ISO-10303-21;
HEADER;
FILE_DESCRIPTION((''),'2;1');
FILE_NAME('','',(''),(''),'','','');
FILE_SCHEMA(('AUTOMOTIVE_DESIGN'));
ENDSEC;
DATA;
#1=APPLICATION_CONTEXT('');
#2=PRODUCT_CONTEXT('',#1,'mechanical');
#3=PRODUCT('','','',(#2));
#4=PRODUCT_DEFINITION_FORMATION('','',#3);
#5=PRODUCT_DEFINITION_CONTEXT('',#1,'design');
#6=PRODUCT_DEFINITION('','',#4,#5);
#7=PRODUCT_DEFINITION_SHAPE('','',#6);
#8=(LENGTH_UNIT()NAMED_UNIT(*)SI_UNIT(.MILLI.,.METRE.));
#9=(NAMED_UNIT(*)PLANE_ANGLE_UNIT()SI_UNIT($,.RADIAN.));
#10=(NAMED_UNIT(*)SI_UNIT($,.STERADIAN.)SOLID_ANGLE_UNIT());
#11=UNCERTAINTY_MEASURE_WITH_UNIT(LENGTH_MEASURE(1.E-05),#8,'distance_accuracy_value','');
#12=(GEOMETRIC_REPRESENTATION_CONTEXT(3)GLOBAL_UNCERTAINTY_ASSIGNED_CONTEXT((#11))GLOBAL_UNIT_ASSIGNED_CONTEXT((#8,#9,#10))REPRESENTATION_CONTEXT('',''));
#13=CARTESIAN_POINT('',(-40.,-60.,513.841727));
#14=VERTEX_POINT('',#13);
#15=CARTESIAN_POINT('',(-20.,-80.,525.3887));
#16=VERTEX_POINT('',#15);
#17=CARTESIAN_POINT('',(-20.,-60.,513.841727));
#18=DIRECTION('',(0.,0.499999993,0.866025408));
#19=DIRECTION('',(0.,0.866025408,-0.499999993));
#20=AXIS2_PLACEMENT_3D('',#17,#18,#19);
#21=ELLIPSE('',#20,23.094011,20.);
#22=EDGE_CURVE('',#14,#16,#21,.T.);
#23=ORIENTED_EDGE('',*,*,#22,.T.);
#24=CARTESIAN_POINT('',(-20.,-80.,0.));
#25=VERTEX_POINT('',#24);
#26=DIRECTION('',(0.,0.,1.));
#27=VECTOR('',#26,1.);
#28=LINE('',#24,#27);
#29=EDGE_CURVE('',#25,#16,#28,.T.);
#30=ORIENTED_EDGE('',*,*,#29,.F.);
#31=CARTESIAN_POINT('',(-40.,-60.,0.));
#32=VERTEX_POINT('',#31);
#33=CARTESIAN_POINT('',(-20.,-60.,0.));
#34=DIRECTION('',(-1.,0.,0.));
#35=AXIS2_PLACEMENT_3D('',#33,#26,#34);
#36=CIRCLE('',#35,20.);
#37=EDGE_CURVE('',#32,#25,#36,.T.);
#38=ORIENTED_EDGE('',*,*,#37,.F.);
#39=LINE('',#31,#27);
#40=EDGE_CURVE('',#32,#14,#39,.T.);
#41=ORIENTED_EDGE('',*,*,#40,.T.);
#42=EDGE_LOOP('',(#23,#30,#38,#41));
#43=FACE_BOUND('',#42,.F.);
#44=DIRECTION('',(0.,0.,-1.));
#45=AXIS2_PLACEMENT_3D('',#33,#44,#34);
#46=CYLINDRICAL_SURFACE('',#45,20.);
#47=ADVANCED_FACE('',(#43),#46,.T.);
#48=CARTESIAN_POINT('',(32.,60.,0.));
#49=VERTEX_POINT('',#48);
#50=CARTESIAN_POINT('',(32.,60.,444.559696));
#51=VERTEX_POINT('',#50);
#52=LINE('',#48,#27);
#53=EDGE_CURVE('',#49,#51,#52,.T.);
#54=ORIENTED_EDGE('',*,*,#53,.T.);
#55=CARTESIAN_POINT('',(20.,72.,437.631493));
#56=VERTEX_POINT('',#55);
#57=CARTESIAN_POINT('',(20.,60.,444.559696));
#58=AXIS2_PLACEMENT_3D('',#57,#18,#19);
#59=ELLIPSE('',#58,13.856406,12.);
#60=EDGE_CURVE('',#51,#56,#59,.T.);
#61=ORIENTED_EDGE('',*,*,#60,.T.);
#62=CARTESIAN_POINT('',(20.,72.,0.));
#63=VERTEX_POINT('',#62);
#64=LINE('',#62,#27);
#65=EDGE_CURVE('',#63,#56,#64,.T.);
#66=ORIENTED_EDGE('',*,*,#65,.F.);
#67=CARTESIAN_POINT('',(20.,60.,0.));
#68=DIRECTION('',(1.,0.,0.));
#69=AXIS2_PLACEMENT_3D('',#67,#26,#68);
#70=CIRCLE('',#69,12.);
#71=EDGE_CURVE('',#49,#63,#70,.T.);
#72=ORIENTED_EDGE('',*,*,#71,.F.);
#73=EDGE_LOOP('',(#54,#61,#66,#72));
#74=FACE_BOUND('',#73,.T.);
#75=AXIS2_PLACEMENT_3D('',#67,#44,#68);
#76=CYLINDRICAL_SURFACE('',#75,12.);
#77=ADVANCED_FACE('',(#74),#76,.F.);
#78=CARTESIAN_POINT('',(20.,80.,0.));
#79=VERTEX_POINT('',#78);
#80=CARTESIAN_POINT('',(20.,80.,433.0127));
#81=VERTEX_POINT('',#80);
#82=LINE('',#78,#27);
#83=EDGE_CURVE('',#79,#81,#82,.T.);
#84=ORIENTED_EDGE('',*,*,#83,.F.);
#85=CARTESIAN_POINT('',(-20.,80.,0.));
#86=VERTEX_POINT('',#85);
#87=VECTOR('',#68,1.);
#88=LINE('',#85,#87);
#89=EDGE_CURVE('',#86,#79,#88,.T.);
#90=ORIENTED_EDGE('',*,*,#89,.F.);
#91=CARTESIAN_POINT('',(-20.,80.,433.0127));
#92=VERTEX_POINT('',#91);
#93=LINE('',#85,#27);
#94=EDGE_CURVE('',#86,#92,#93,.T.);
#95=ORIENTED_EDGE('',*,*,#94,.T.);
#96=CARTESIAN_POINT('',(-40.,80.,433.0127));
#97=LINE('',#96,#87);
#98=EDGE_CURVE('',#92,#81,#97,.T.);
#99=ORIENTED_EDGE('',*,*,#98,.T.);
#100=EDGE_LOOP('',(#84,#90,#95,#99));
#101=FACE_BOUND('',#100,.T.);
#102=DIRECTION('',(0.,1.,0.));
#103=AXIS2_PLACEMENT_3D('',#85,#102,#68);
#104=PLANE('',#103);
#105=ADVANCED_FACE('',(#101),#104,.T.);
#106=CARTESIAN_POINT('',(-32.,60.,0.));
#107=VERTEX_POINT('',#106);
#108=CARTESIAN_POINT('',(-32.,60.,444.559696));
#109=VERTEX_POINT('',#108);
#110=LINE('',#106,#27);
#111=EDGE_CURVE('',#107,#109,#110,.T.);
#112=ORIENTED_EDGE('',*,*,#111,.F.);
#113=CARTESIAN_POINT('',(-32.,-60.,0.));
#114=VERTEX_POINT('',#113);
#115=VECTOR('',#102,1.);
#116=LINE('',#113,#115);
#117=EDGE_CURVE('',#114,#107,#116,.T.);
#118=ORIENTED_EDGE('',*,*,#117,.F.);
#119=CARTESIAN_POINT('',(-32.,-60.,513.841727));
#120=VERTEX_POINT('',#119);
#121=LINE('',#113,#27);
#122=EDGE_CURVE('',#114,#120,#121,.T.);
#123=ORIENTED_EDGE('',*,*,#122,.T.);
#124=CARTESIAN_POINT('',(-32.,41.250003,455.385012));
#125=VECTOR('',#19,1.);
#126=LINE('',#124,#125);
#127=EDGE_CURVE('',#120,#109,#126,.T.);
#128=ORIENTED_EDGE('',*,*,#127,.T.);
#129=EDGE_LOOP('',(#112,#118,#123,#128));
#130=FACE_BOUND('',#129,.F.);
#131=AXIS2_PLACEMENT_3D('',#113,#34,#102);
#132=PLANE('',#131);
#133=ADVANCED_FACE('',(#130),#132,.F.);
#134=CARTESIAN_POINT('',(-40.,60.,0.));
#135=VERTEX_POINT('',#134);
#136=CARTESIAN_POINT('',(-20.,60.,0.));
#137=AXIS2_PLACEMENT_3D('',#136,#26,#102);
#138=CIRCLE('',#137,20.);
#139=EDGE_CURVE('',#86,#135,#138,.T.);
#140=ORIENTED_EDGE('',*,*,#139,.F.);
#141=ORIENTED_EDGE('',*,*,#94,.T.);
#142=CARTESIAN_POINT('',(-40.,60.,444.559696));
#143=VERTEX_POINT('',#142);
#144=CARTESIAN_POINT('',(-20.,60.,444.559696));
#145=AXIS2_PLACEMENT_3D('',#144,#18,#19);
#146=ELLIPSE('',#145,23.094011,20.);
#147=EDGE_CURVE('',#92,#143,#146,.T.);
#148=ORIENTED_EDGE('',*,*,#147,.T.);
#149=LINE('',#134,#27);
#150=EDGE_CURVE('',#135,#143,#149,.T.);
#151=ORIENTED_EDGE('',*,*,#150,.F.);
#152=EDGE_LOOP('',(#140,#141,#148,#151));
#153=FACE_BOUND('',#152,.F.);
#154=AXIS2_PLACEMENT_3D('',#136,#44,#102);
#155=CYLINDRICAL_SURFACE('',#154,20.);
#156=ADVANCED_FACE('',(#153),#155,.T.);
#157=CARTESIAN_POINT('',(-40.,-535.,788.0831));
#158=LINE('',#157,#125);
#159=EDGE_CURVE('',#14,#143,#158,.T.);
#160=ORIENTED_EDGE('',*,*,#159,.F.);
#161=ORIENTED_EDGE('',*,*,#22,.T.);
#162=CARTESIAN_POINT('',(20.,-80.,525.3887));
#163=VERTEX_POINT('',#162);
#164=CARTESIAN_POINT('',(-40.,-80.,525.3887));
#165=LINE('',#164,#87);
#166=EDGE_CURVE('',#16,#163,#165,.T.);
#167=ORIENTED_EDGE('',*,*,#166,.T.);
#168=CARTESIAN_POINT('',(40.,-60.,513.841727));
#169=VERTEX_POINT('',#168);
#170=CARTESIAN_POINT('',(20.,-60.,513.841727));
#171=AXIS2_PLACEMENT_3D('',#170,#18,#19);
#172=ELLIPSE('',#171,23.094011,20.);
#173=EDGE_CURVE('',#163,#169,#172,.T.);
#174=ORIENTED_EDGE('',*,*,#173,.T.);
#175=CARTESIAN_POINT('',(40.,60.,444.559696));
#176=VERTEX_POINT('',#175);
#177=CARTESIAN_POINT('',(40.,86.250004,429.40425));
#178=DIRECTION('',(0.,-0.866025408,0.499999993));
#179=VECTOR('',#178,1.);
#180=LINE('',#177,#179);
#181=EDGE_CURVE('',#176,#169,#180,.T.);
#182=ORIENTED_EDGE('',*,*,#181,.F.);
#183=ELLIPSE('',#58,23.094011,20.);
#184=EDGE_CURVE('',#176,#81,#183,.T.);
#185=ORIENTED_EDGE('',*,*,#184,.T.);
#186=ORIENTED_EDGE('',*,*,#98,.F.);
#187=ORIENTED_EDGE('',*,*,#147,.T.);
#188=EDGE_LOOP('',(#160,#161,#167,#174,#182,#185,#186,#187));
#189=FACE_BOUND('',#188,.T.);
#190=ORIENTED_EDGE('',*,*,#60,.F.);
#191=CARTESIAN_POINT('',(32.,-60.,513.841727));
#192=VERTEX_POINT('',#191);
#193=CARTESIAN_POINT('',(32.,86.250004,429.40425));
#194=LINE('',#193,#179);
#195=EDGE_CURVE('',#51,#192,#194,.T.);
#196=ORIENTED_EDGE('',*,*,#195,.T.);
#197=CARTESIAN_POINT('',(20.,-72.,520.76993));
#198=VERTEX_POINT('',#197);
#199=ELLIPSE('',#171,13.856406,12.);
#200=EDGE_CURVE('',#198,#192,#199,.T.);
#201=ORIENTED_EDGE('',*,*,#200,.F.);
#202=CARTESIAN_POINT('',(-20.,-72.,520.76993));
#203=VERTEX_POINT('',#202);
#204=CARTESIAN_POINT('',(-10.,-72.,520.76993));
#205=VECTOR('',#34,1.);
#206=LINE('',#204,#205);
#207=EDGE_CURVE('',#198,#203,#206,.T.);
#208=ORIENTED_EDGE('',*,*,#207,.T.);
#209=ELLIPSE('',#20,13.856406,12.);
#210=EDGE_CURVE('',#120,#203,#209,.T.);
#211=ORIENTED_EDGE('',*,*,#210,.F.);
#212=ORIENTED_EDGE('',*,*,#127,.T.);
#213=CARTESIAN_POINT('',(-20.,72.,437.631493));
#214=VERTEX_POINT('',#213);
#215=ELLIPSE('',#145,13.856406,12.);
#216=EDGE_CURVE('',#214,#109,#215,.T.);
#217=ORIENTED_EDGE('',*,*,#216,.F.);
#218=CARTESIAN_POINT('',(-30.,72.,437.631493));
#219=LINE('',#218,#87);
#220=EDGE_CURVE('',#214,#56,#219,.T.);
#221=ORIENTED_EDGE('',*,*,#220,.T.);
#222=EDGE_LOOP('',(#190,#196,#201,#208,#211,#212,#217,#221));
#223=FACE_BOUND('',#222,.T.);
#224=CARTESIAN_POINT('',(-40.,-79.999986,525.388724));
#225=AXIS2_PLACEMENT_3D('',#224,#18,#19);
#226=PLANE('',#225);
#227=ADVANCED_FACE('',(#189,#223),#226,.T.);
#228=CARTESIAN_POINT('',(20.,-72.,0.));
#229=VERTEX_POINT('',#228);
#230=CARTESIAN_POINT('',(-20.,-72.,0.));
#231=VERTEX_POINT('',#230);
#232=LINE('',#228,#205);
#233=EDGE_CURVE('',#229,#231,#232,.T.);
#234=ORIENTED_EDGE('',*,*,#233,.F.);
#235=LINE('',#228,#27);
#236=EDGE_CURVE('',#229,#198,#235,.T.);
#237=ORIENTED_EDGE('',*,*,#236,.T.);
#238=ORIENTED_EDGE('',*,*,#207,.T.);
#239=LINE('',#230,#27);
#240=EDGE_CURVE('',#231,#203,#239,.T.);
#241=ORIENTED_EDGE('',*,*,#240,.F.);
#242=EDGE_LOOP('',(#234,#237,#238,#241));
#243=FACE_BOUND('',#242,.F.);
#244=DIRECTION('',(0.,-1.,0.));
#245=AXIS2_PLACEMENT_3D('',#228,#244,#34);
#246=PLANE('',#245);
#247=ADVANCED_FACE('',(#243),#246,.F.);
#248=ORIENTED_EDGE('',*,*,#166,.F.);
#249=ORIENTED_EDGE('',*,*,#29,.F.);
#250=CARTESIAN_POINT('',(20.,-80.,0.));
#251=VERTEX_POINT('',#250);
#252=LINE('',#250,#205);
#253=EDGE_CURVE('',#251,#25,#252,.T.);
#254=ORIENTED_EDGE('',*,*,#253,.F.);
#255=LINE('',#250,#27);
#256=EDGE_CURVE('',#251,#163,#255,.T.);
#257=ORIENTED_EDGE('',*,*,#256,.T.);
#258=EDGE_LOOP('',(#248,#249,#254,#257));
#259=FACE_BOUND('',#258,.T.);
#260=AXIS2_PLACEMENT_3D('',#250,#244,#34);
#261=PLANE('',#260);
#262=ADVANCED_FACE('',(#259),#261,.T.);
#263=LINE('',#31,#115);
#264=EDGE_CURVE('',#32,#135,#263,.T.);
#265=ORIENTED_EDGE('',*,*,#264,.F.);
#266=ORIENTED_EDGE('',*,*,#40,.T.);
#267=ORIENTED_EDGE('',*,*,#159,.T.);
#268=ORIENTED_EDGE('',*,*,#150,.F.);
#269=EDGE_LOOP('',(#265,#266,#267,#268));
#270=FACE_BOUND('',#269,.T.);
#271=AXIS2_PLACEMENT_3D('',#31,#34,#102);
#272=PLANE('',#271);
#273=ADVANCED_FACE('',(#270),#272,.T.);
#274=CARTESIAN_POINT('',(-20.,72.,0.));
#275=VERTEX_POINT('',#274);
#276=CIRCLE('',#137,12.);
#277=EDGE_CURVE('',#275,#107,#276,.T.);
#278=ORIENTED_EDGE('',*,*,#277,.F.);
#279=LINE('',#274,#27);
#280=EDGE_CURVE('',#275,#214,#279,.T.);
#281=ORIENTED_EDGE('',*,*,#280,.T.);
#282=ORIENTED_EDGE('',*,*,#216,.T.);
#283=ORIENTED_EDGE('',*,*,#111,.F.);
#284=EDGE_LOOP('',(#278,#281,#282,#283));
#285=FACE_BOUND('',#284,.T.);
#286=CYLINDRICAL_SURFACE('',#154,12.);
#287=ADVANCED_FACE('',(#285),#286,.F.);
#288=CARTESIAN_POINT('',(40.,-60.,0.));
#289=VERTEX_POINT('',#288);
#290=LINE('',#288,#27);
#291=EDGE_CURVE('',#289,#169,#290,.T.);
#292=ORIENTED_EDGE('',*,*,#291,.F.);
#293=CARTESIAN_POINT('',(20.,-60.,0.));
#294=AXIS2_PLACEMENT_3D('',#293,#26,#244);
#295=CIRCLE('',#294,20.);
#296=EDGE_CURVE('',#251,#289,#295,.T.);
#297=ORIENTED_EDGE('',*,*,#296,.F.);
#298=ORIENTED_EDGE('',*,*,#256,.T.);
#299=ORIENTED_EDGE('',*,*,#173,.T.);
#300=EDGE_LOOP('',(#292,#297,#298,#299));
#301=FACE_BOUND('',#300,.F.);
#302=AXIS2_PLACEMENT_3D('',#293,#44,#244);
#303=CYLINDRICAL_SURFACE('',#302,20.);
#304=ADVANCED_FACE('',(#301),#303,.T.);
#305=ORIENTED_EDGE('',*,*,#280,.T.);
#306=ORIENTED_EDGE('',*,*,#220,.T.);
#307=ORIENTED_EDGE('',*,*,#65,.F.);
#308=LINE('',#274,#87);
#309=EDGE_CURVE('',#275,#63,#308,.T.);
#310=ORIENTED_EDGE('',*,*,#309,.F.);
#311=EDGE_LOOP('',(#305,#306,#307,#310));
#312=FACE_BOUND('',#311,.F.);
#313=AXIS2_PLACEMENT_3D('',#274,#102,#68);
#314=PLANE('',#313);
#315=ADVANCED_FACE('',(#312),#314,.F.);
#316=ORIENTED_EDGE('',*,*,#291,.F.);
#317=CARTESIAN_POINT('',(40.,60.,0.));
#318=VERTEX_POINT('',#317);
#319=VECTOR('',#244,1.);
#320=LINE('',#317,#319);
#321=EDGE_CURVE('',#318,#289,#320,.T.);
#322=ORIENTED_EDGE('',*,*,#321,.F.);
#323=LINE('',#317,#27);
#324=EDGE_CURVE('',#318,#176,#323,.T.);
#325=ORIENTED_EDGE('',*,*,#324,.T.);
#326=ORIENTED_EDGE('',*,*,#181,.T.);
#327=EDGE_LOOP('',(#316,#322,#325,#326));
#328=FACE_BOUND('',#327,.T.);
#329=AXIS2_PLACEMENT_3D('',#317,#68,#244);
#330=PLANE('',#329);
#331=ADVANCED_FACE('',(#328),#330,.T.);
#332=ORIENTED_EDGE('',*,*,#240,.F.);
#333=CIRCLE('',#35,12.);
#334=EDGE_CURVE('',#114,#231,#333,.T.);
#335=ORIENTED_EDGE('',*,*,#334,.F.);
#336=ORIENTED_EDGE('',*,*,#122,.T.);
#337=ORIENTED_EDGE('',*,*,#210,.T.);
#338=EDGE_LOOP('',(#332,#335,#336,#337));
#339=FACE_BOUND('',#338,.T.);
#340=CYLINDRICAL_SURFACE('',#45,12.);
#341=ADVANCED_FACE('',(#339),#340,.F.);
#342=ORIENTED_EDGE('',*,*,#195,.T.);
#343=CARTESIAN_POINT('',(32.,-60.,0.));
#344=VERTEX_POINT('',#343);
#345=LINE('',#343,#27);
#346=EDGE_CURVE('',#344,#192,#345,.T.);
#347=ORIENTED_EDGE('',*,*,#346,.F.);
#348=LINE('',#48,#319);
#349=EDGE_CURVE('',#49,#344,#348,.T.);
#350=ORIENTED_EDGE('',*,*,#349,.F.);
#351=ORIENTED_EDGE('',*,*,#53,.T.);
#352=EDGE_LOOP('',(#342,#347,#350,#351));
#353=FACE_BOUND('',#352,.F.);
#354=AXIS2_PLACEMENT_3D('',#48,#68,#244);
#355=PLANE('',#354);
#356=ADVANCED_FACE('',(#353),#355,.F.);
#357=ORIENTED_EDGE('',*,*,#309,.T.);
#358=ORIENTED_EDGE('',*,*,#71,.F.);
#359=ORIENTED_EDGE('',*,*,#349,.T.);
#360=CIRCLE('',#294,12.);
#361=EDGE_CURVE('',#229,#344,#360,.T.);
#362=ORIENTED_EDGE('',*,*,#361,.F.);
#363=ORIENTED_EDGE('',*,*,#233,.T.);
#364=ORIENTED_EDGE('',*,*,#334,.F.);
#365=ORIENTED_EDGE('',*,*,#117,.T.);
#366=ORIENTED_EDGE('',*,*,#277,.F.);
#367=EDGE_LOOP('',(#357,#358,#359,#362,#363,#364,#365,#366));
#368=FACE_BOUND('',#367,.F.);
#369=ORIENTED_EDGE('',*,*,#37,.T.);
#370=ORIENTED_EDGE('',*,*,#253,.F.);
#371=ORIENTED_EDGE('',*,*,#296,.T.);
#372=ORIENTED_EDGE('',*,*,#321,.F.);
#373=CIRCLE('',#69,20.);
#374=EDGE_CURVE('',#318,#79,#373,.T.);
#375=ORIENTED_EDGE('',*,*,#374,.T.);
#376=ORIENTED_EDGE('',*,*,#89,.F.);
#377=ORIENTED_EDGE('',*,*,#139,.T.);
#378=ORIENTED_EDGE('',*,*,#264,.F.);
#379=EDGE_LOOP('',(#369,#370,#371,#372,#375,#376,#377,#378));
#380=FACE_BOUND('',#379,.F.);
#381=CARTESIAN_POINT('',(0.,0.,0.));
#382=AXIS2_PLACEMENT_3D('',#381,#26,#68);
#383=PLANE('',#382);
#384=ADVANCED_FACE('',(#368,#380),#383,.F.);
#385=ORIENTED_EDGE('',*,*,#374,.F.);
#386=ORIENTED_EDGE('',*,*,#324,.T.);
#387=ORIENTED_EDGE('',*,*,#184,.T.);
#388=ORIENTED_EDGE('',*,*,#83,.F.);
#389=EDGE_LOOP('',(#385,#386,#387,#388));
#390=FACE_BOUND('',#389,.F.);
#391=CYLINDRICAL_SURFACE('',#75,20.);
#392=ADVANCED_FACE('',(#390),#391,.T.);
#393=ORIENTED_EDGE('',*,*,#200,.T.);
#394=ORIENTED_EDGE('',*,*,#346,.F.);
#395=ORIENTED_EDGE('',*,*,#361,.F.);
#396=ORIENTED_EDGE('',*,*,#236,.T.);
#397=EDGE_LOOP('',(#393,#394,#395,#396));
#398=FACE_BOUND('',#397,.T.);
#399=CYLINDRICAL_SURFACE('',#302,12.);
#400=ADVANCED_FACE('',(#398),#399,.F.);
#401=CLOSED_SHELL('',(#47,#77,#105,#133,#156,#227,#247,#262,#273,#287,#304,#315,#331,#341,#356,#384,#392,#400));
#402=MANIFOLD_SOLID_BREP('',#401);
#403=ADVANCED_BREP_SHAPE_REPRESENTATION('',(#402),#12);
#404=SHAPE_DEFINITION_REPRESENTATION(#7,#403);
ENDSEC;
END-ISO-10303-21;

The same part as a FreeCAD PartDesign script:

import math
import FreeCAD as App
import Part
import Sketcher

V = App.Vector
Q = App.Units.Quantity

doc = App.newDocument("Part")
body = doc.addObject("PartDesign::Body", "Body")

# Sketch on XY plane
sketch1 = body.newObject("Sketcher::SketchObject", "Sketch")
sketch1.AttachmentSupport = (doc.getObject("XY_Plane"), [""])
sketch1.MapMode = "FlatFace"
sketch1.addGeometry([
    Part.LineSegment(V(-40, 60, 0), V(-40, -60, 0)),  # 0
    Part.ArcOfCircle(Part.Circle(V(-20, -60, 0), V(0, 0, 1), 20), math.radians(180), math.radians(270)),  # 1
    Part.LineSegment(V(-20, -80, 0), V(20, -80, 0)),  # 2
    Part.ArcOfCircle(Part.Circle(V(20, -60, 0), V(0, 0, 1), 20), math.radians(-90), math.radians(0)),  # 3
    Part.LineSegment(V(40, -60, 0), V(40, 60, 0)),  # 4
    Part.ArcOfCircle(Part.Circle(V(20, 60, 0), V(0, 0, 1), 20), math.radians(0), math.radians(90)),  # 5
    Part.LineSegment(V(20, 80, 0), V(-20, 80, 0)),  # 6
    Part.ArcOfCircle(Part.Circle(V(-20, 60, 0), V(0, 0, 1), 20), math.radians(90), math.radians(180)),  # 7
    Part.ArcOfCircle(Part.Circle(V(-20, 60, 0), V(0, 0, 1), 12), math.radians(90), math.radians(180)),  # 8
    Part.LineSegment(V(-20, 72, 0), V(20, 72, 0)),  # 9
    Part.ArcOfCircle(Part.Circle(V(20, 60, 0), V(0, 0, 1), 12), math.radians(0), math.radians(90)),  # 10
    Part.LineSegment(V(32, 60, 0), V(32, -60, 0)),  # 11
    Part.ArcOfCircle(Part.Circle(V(20, -60, 0), V(0, 0, 1), 12), math.radians(-90), math.radians(0)),  # 12
    Part.LineSegment(V(20, -72, 0), V(-20, -72, 0)),  # 13
    Part.ArcOfCircle(Part.Circle(V(-20, -60, 0), V(0, 0, 1), 12), math.radians(180), math.radians(270)),  # 14
    Part.LineSegment(V(-32, -60, 0), V(-32, 60, 0)),  # 15
], False)
sketch1.addConstraint([
    Sketcher.Constraint("Tangent", 0, 2, 1, 1),
    Sketcher.Constraint("Tangent", 1, 2, 2, 1),
    Sketcher.Constraint("Tangent", 2, 2, 3, 1),
    Sketcher.Constraint("Tangent", 3, 2, 4, 1),
    Sketcher.Constraint("Tangent", 4, 2, 5, 1),
    Sketcher.Constraint("Tangent", 5, 2, 6, 1),
    Sketcher.Constraint("Tangent", 6, 2, 7, 1),
    Sketcher.Constraint("Tangent", 7, 2, 0, 1),
    Sketcher.Constraint("Tangent", 8, 1, 9, 1),
    Sketcher.Constraint("Tangent", 9, 2, 10, 2),
    Sketcher.Constraint("Tangent", 10, 1, 11, 1),
    Sketcher.Constraint("Tangent", 11, 2, 12, 2),
    Sketcher.Constraint("Tangent", 12, 1, 13, 1),
    Sketcher.Constraint("Tangent", 13, 2, 14, 2),
    Sketcher.Constraint("Tangent", 14, 1, 15, 1),
    Sketcher.Constraint("Tangent", 15, 2, 8, 2),
    Sketcher.Constraint("Vertical", 0),
    Sketcher.Constraint("Horizontal", 2),
    Sketcher.Constraint("Vertical", 4),
    Sketcher.Constraint("Horizontal", 6),
    Sketcher.Constraint("Horizontal", 9),
    Sketcher.Constraint("Vertical", 11),
    Sketcher.Constraint("Horizontal", 13),
    Sketcher.Constraint("Vertical", 15),
    Sketcher.Constraint("Coincident", 8, 3, 7, 3),
    Sketcher.Constraint("Coincident", 10, 3, 5, 3),
    Sketcher.Constraint("Coincident", 12, 3, 3, 3),
    Sketcher.Constraint("Equal", 1, 3),
    Sketcher.Constraint("Equal", 3, 5),
    Sketcher.Constraint("Equal", 5, 7),
    Sketcher.Constraint("Equal", 12, 14),
    Sketcher.Constraint("Symmetric", 1, 3, 5, 3, -1, 1),
    Sketcher.Constraint("Radius", 1, Q("20 mm")),
    Sketcher.Constraint("DistanceX", 2, 1, 2, 2, Q("40 mm")),
    Sketcher.Constraint("DistanceY", 1, 2, -1, 1, Q("80 mm")),
    Sketcher.Constraint("Radius", 8, Q("12 mm")),
])
pad1 = body.newObject("PartDesign::Pad", "Pad")
pad1.Profile = sketch1
pad1.Length = 545

# Sketch on YZ plane
sketch2 = body.newObject("Sketcher::SketchObject", "Sketch001")
sketch2.AttachmentSupport = (doc.getObject("YZ_Plane"), [""])
sketch2.MapMode = "FlatFace"
sketch2.AttachmentOffset = App.Placement(V(0, 0, -40), App.Rotation())
sketch2.addGeometry([
    Part.LineSegment(V(-87.4465, 538.6384, 0), V(-80, 571.1122, 0)),  # 0
    Part.LineSegment(V(-80, 571.1122, 0), V(151.9872, 567.7194, 0)),  # 1
    Part.LineSegment(V(151.9872, 567.7194, 0), V(80, 433.0127, 0)),  # 2
    Part.LineSegment(V(79.999996, 433.012693, 0), V(-79.999986, 525.388724, 0)),  # 3
    Part.LineSegment(V(-80, 525.3887, 0), V(-87.4465, 538.6384, 0)),  # 4
], False)
sketch2.addConstraint([
    Sketcher.Constraint("Coincident", 0, 2, 1, 1),
    Sketcher.Constraint("Coincident", 1, 2, 2, 1),
    Sketcher.Constraint("Coincident", 2, 2, 3, 1),
    Sketcher.Constraint("Coincident", 3, 2, 4, 1),
    Sketcher.Constraint("Coincident", 4, 2, 0, 1),
    Sketcher.Constraint("DistanceX", 0, 2, -1, 1, Q("80 mm")),
    Sketcher.Constraint("DistanceX", -1, 1, 2, 2, Q("80 mm")),
    Sketcher.Constraint("DistanceX", 3, 2, -1, 1, Q("80 mm")),
    Sketcher.Constraint("Distance", 1, Q("232.012 mm")),
    Sketcher.Constraint("Distance", 3, Q("184.752 mm")),
    Sketcher.Constraint("DistanceY", 4, 2, 1, 2, Q("29.081 mm")),
    Sketcher.Constraint("Distance", 0, Q("33.3166 mm")),
    Sketcher.Constraint("Distance", 2, Q("152.7352 mm")),
    Sketcher.Constraint("Distance", 4, Q("15.1988 mm")),
    Sketcher.Constraint("DistanceY", -1, 1, 0, 2, Q("571.1122 mm")),
])
pocket1 = body.newObject("PartDesign::Pocket", "Pocket")
pocket1.Profile = sketch2
pocket1.Length = 92
pocket1.Reversed = True

doc.recompute()
